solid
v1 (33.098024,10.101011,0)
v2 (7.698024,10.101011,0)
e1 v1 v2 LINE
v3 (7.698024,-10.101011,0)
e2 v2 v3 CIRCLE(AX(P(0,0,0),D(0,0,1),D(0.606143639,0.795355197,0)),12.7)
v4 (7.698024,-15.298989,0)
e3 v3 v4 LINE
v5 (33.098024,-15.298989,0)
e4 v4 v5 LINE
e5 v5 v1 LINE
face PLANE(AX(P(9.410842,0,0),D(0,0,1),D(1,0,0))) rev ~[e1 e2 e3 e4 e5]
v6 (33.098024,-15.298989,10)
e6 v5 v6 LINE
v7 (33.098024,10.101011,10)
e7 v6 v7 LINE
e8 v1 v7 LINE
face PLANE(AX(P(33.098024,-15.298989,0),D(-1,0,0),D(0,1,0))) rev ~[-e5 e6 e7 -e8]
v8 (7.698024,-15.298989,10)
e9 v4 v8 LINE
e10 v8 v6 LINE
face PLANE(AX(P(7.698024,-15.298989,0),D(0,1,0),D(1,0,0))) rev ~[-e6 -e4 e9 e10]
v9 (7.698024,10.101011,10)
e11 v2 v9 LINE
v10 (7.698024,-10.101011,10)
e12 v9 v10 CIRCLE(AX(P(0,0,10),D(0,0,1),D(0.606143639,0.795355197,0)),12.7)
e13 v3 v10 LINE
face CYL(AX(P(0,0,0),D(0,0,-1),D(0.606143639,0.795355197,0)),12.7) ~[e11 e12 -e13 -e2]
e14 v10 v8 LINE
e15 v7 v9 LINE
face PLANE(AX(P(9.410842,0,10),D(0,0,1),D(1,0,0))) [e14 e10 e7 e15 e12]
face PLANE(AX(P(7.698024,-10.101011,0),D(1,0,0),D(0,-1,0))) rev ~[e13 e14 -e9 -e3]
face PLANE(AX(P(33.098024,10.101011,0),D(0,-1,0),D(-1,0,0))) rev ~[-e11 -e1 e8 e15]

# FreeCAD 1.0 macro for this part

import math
import FreeCAD as App
import Part
import Sketcher

V = App.Vector
Q = App.Units.Quantity

doc = App.newDocument("Part")
body = doc.addObject("PartDesign::Body", "Body")

# Sketch on XY plane
sketch1 = body.newObject("Sketcher::SketchObject", "Sketch")
sketch1.AttachmentSupport = (doc.getObject("XY_Plane"), [""])
sketch1.MapMode = "FlatFace"
sketch1.addGeometry([
    Part.LineSegment(V(8, -10, 0), V(8, -15, 0)),  # 0
    Part.LineSegment(V(8, -15, 0), V(33, -15, 0)),  # 1
    Part.LineSegment(V(33, -15, 0), V(33, 10, 0)),  # 2
    Part.LineSegment(V(33, 10, 0), V(8, 10, 0)),  # 3
    Part.ArcOfCircle(Part.Circle(V(0, 0, 0), V(0, 0, 1), 13), math.radians(53), math.radians(307)),  # 4
], False)
sketch1.addConstraint([
    Sketcher.Constraint("Coincident", 0, 2, 1, 1),
    Sketcher.Constraint("Coincident", 1, 2, 2, 1),
    Sketcher.Constraint("Coincident", 2, 2, 3, 1),
    Sketcher.Constraint("Coincident", 3, 2, 4, 1),
    Sketcher.Constraint("Coincident", 4, 2, 0, 1),
    Sketcher.Constraint("Vertical", 0),
    Sketcher.Constraint("Horizontal", 1),
    Sketcher.Constraint("Vertical", 2),
    Sketcher.Constraint("Horizontal", 3),
    Sketcher.Constraint("Coincident", 4, 3, -1, 1),
    Sketcher.Constraint("Vertical", 0, 2, 3, 2),
    Sketcher.Constraint("Equal", 3, 2),
    Sketcher.Constraint("Radius", 4, Q("12.7 mm")),
    Sketcher.Constraint("DistanceX", 1, 1, 1, 2, Q("25.4 mm")),
    Sketcher.Constraint("DistanceY", 0, 2, 0, 1, Q("5.197978 mm")),
])
pad1 = body.newObject("PartDesign::Pad", "Pad")
pad1.Profile = sketch1
pad1.Length = 10

doc.recompute()
